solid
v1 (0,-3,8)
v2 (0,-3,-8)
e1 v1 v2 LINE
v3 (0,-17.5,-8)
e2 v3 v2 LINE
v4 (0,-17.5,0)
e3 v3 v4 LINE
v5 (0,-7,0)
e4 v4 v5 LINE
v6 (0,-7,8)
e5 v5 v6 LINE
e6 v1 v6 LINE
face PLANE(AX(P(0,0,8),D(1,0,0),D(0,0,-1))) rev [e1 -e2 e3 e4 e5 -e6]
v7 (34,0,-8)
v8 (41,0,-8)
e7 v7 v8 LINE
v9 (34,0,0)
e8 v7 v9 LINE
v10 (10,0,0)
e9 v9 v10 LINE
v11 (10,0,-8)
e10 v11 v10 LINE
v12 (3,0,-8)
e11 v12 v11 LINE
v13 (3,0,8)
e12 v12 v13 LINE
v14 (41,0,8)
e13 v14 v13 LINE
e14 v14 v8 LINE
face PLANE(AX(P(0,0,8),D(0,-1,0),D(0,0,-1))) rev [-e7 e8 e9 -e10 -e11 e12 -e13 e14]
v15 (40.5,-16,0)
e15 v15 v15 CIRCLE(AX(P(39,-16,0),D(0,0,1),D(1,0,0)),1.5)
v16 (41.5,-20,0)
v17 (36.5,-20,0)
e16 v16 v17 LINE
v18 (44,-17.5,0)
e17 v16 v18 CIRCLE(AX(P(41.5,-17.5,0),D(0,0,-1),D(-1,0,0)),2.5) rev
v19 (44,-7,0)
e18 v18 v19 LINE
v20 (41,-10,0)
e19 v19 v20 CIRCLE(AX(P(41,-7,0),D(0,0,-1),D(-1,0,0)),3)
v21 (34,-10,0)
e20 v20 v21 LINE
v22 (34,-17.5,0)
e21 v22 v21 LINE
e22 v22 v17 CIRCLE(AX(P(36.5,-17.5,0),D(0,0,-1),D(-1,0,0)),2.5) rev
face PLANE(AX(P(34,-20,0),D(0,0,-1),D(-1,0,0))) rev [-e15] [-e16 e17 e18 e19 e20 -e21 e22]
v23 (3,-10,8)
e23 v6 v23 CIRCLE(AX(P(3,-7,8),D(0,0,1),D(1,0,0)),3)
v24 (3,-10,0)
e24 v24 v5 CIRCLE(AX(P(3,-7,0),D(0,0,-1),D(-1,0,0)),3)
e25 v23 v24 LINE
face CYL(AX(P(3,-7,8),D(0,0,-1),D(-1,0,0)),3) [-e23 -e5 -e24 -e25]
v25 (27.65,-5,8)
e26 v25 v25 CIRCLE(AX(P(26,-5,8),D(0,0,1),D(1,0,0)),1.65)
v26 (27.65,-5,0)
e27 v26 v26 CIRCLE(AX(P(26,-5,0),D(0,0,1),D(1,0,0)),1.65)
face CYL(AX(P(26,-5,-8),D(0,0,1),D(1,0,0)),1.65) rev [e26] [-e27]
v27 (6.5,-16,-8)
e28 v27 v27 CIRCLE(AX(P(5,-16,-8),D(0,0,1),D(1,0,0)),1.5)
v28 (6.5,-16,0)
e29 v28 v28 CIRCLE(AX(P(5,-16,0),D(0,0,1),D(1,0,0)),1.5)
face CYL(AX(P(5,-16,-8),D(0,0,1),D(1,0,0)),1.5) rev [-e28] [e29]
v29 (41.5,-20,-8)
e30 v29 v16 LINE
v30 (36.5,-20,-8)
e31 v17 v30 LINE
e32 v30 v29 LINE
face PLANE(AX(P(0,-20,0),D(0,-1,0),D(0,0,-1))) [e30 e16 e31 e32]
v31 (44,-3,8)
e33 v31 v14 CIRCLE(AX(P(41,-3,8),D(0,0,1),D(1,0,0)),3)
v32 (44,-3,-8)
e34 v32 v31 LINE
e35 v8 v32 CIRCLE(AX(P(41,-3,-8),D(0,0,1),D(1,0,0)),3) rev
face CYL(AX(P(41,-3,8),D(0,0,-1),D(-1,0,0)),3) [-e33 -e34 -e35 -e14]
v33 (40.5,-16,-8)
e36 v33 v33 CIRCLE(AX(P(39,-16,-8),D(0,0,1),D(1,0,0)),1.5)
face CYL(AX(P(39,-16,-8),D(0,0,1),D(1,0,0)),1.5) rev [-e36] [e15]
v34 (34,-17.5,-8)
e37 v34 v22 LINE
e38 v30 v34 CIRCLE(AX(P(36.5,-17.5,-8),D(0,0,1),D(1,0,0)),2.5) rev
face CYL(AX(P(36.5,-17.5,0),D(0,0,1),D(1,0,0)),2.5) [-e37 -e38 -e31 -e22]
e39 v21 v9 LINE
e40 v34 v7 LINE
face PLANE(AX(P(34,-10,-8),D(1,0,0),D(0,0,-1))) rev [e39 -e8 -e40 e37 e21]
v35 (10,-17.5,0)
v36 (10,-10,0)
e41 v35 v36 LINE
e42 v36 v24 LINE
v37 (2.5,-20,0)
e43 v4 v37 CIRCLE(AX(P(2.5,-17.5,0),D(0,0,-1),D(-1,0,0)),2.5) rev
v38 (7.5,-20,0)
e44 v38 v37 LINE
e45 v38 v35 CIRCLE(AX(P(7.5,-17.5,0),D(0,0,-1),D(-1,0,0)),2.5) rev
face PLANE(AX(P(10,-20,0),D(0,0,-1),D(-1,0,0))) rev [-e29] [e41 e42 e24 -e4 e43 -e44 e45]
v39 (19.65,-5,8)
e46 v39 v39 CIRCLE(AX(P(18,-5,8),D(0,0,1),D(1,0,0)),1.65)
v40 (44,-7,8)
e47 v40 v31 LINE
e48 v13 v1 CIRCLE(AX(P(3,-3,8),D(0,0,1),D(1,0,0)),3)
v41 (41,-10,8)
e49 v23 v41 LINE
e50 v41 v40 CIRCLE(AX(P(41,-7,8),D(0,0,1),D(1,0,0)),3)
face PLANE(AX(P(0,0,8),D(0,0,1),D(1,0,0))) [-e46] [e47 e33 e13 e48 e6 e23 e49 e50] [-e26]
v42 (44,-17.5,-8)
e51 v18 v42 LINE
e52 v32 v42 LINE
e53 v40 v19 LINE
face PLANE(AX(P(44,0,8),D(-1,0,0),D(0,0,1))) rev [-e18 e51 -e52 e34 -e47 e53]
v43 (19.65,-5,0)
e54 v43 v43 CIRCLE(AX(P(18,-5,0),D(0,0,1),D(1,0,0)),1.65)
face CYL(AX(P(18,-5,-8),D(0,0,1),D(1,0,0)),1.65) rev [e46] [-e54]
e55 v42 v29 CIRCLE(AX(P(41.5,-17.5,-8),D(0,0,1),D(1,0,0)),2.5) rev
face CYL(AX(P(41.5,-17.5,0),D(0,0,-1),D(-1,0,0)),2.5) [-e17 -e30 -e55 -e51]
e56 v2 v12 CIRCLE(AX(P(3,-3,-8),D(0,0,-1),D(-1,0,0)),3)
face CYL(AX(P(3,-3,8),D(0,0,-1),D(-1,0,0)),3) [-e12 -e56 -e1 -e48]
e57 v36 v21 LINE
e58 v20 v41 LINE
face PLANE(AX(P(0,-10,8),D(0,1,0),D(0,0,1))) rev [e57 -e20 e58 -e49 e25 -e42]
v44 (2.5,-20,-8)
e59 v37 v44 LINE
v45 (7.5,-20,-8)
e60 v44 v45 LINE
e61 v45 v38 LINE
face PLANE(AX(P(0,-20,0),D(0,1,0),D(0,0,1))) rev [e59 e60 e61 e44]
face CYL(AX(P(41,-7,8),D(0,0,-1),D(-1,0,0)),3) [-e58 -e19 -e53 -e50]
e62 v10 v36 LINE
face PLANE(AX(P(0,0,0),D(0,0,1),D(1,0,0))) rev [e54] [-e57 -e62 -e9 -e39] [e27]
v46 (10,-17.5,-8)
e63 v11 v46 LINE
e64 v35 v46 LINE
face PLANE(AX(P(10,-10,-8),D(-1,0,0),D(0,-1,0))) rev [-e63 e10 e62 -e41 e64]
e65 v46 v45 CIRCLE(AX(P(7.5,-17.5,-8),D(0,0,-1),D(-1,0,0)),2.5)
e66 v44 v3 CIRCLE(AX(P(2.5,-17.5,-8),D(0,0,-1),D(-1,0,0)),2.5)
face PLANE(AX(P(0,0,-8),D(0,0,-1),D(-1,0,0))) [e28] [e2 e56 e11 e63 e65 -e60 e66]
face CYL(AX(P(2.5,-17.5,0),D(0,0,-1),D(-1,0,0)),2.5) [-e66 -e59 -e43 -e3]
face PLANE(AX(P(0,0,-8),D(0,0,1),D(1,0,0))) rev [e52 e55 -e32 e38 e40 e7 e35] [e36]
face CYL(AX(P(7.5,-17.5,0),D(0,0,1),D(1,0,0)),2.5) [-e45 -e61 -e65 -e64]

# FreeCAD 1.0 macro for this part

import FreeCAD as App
import Part
import Sketcher
from FreeCAD import Vector
Q = App.Units.Quantity


def edges_at(feature, points):
    """Names of the edges that pass closest to the given points."""
    edges = feature.Shape.Edges
    near = lambda p: min(range(len(edges)), key=lambda i: edges[i].distToShape(Part.Vertex(*p))[0])
    return sorted({f"Edge{near(p) + 1}" for p in points})


def add_polygon(sketch, points):
    """Adds a closed chain of lines whose ends are joined by coincident constraints."""
    first, n = sketch.GeometryCount, len(points)
    for a, b in zip(points, points[1:] + points[:1]):
        sketch.addGeometry(Part.LineSegment(App.Vector(*a, 0), App.Vector(*b, 0)), False)
    for i in range(n):
        sketch.addConstraint(Sketcher.Constraint("Coincident", first + i, 2, first + (i + 1) % n, 1))

doc = App.newDocument("Part")
params = doc.addObject("Spreadsheet::Sheet", "Params")
for row, (alias, value) in enumerate([
    ("sketch1_width", "44 mm"),
    ("sketch1_height", "10 mm"),
    ("pad1_length", "8 mm"),
    ("sketch2_width", "10 mm"),
    ("pad2_length", "8 mm"),
    ("sketch3_diameter", "3.3 mm"),
    ("sketch4_width", "10 mm"),
    ("sketch4_height", "8 mm"),
    ("pad3_length", "10 mm"),
    ("sketch5_diameter", "3 mm"),
    ("fillet_radius", "2.5 mm"),
    ("fillet2_radius", "3 mm"),
], start=1):
    params.set(f"A{row}", alias)
    params.set(f"B{row}", "=" + value)
    params.setAlias(f"B{row}", alias)

body = doc.addObject("PartDesign::Body", "Body")

sketch1 = doc.addObject("Sketcher::SketchObject", "Sketch")
body.addObject(sketch1)
sketch1.AttachmentSupport = (doc.XY_Plane, [""])
sketch1.MapMode = "FlatFace"
add_polygon(sketch1, [(0, 0), (0, -10), (44, -10), (44, 0)])
sketch1.addConstraint(Sketcher.Constraint("Vertical", 0))
sketch1.addConstraint(Sketcher.Constraint("Horizontal", 1))
sketch1.addConstraint(Sketcher.Constraint("Vertical", 2))
sketch1.addConstraint(Sketcher.Constraint("Horizontal", 3))
sketch1.addConstraint(Sketcher.Constraint("Coincident", 3, 2, -1, 1))
sketch1.addConstraint(Sketcher.Constraint("DistanceX", 1, 1, 1, 2, Q("44 mm")))
sketch1.addConstraint(Sketcher.Constraint("DistanceY", 0, 2, 0, 1, Q("10 mm")))
sketch1.setExpression("Constraints[9]", "Params.sketch1_width")
sketch1.setExpression("Constraints[10]", "Params.sketch1_height")
pad1 = doc.addObject("PartDesign::Pad", "Pad")
body.addObject(pad1)
pad1.Profile = sketch1
pad1.setExpression("Length", "Params.pad1_length")

sketch2 = doc.addObject("Sketcher::SketchObject", "Sketch001")
body.addObject(sketch2)
sketch2.AttachmentSupport = (doc.XY_Plane, [""])
sketch2.MapMode = "FlatFace"
add_polygon(sketch2, [(10, 0), (10, -10), (0, -10), (0, 0)])
add_polygon(sketch2, [(44, 0), (44, -10), (34, -10), (34, 0)])
sketch2.addConstraint(Sketcher.Constraint("Vertical", 0))
sketch2.addConstraint(Sketcher.Constraint("Horizontal", 1))
sketch2.addConstraint(Sketcher.Constraint("Vertical", 2))
sketch2.addConstraint(Sketcher.Constraint("Horizontal", 3))
sketch2.addConstraint(Sketcher.Constraint("Vertical", 4))
sketch2.addConstraint(Sketcher.Constraint("Horizontal", 5))
sketch2.addConstraint(Sketcher.Constraint("Vertical", 6))
sketch2.addConstraint(Sketcher.Constraint("Horizontal", 7))
sketch2.addConstraint(Sketcher.Constraint("Coincident", 2, 2, -1, 1))
sketch2.addConstraint(Sketcher.Constraint("PointOnObject", 6, 2, -1))
sketch2.addConstraint(Sketcher.Constraint("Horizontal", 1, 2, 4, 2))
sketch2.addConstraint(Sketcher.Constraint("Equal", 3, 5))
sketch2.addConstraint(Sketcher.Constraint("Equal", 7, 0))
sketch2.addConstraint(Sketcher.Constraint("DistanceX", 1, 2, 1, 1, Q("10 mm")))
sketch2.addConstraint(Sketcher.Constraint("DistanceX", -1, 1, 4, 2, Q("44 mm")))
sketch2.setExpression("Constraints[21]", "Params.sketch2_width")
pad2 = doc.addObject("PartDesign::Pad", "Pad001")
body.addObject(pad2)
pad2.Profile = sketch2
pad2.setExpression("Length", "Params.pad2_length")
pad2.Reversed = True

sketch3 = doc.addObject("Sketcher::SketchObject", "Sketch002")
body.addObject(sketch3)
sketch3.AttachmentSupport = (doc.XY_Plane, [""])
sketch3.MapMode = "FlatFace"
sketch3.AttachmentOffset = App.Placement(Vector(0, 0, 8), App.Rotation())
sketch3.addGeometry(Part.Circle(Vector(18, -5, 0), Vector(0, 0, 1), 1.6), False)
sketch3.addGeometry(Part.Circle(Vector(26, -5, 0), Vector(0, 0, 1), 1.6), False)
sketch3.addConstraint(Sketcher.Constraint("Equal", 0, 1))
sketch3.addConstraint(Sketcher.Constraint("Horizontal", 0, 3, 1, 3))
sketch3.addConstraint(Sketcher.Constraint("Diameter", 0, Q("3.3 mm")))
sketch3.addConstraint(Sketcher.Constraint("DistanceX", -1, 1, 0, 3, Q("18 mm")))
sketch3.addConstraint(Sketcher.Constraint("DistanceY", 0, 3, -1, 1, Q("5 mm")))
sketch3.addConstraint(Sketcher.Constraint("DistanceX", -1, 1, 1, 3, Q("26 mm")))
sketch3.setExpression("Constraints[2]", "Params.sketch3_diameter")
pocket1 = doc.addObject("PartDesign::Pocket", "Pocket")
body.addObject(pocket1)
pocket1.Profile = sketch3
pocket1.Type = "ThroughAll"

sketch4 = doc.addObject("Sketcher::SketchObject", "Sketch003")
body.addObject(sketch4)
sketch4.AttachmentSupport = (doc.XZ_Plane, [""])
sketch4.MapMode = "FlatFace"
sketch4.AttachmentOffset = App.Placement(Vector(0, 0, 10), App.Rotation())
add_polygon(sketch4, [(10, -8), (10, 0), (0, 0), (0, -8)])
add_polygon(sketch4, [(44, -8), (44, 0), (34, 0), (34, -8)])
sketch4.addConstraint(Sketcher.Constraint("Vertical", 0))
sketch4.addConstraint(Sketcher.Constraint("Horizontal", 1))
sketch4.addConstraint(Sketcher.Constraint("Vertical", 2))
sketch4.addConstraint(Sketcher.Constraint("Horizontal", 3))
sketch4.addConstraint(Sketcher.Constraint("Vertical", 4))
sketch4.addConstraint(Sketcher.Constraint("Horizontal", 5))
sketch4.addConstraint(Sketcher.Constraint("Vertical", 6))
sketch4.addConstraint(Sketcher.Constraint("Horizontal", 7))
sketch4.addConstraint(Sketcher.Constraint("Coincident", 1, 2, -1, 1))
sketch4.addConstraint(Sketcher.Constraint("PointOnObject", 4, 2, -1))
sketch4.addConstraint(Sketcher.Constraint("Horizontal", 3, 2, 6, 2))
sketch4.addConstraint(Sketcher.Constraint("Equal", 3, 5))
sketch4.addConstraint(Sketcher.Constraint("DistanceX", 1, 2, 1, 1, Q("10 mm")))
sketch4.addConstraint(Sketcher.Constraint("DistanceY", 0, 1, 0, 2, Q("8 mm")))
sketch4.addConstraint(Sketcher.Constraint("DistanceX", -1, 1, 4, 2, Q("44 mm")))
sketch4.setExpression("Constraints[20]", "Params.sketch4_width")
sketch4.setExpression("Constraints[21]", "Params.sketch4_height")
pad3 = doc.addObject("PartDesign::Pad", "Pad002")
body.addObject(pad3)
pad3.Profile = sketch4
pad3.setExpression("Length", "Params.pad3_length")

sketch5 = doc.addObject("Sketcher::SketchObject", "Sketch004")
body.addObject(sketch5)
sketch5.AttachmentSupport = (doc.XY_Plane, [""])
sketch5.MapMode = "FlatFace"
sketch5.addGeometry(Part.Circle(Vector(5, -16, 0), Vector(0, 0, 1), 1.5), False)
sketch5.addGeometry(Part.Circle(Vector(39, -16, 0), Vector(0, 0, 1), 1.5), False)
sketch5.addConstraint(Sketcher.Constraint("Equal", 0, 1))
sketch5.addConstraint(Sketcher.Constraint("Horizontal", 0, 3, 1, 3))
sketch5.addConstraint(Sketcher.Constraint("Diameter", 0, Q("3 mm")))
sketch5.addConstraint(Sketcher.Constraint("DistanceX", -1, 1, 0, 3, Q("5 mm")))
sketch5.addConstraint(Sketcher.Constraint("DistanceY", 0, 3, -1, 1, Q("16 mm")))
sketch5.addConstraint(Sketcher.Constraint("DistanceX", -1, 1, 1, 3, Q("39 mm")))
sketch5.setExpression("Constraints[2]", "Params.sketch5_diameter")
pocket2 = doc.addObject("PartDesign::Pocket", "Pocket001")
body.addObject(pocket2)
pocket2.Profile = sketch5
pocket2.Type = "ThroughAll"
doc.recompute()

fillet = doc.addObject("PartDesign::Fillet", "Fillet")
body.addObject(fillet)
fillet.Base = (pocket2, edges_at(pocket2, [
    (10, -20, -4),
    (0, -20, -4),
    (34, -20, -4),
    (44, -20, -4),
]))
fillet.setExpression("Radius", "Params.fillet_radius")
doc.recompute()

fillet2 = doc.addObject("PartDesign::Fillet", "Fillet001")
body.addObject(fillet2)
fillet2.Base = (fillet, edges_at(fillet, [
    (0, 0, 0),
    (44, 0, 0),
    (44, -10, 4),
    (0, -10, 4),
]))
fillet2.setExpression("Radius", "Params.fillet2_radius")

doc.recompute()
